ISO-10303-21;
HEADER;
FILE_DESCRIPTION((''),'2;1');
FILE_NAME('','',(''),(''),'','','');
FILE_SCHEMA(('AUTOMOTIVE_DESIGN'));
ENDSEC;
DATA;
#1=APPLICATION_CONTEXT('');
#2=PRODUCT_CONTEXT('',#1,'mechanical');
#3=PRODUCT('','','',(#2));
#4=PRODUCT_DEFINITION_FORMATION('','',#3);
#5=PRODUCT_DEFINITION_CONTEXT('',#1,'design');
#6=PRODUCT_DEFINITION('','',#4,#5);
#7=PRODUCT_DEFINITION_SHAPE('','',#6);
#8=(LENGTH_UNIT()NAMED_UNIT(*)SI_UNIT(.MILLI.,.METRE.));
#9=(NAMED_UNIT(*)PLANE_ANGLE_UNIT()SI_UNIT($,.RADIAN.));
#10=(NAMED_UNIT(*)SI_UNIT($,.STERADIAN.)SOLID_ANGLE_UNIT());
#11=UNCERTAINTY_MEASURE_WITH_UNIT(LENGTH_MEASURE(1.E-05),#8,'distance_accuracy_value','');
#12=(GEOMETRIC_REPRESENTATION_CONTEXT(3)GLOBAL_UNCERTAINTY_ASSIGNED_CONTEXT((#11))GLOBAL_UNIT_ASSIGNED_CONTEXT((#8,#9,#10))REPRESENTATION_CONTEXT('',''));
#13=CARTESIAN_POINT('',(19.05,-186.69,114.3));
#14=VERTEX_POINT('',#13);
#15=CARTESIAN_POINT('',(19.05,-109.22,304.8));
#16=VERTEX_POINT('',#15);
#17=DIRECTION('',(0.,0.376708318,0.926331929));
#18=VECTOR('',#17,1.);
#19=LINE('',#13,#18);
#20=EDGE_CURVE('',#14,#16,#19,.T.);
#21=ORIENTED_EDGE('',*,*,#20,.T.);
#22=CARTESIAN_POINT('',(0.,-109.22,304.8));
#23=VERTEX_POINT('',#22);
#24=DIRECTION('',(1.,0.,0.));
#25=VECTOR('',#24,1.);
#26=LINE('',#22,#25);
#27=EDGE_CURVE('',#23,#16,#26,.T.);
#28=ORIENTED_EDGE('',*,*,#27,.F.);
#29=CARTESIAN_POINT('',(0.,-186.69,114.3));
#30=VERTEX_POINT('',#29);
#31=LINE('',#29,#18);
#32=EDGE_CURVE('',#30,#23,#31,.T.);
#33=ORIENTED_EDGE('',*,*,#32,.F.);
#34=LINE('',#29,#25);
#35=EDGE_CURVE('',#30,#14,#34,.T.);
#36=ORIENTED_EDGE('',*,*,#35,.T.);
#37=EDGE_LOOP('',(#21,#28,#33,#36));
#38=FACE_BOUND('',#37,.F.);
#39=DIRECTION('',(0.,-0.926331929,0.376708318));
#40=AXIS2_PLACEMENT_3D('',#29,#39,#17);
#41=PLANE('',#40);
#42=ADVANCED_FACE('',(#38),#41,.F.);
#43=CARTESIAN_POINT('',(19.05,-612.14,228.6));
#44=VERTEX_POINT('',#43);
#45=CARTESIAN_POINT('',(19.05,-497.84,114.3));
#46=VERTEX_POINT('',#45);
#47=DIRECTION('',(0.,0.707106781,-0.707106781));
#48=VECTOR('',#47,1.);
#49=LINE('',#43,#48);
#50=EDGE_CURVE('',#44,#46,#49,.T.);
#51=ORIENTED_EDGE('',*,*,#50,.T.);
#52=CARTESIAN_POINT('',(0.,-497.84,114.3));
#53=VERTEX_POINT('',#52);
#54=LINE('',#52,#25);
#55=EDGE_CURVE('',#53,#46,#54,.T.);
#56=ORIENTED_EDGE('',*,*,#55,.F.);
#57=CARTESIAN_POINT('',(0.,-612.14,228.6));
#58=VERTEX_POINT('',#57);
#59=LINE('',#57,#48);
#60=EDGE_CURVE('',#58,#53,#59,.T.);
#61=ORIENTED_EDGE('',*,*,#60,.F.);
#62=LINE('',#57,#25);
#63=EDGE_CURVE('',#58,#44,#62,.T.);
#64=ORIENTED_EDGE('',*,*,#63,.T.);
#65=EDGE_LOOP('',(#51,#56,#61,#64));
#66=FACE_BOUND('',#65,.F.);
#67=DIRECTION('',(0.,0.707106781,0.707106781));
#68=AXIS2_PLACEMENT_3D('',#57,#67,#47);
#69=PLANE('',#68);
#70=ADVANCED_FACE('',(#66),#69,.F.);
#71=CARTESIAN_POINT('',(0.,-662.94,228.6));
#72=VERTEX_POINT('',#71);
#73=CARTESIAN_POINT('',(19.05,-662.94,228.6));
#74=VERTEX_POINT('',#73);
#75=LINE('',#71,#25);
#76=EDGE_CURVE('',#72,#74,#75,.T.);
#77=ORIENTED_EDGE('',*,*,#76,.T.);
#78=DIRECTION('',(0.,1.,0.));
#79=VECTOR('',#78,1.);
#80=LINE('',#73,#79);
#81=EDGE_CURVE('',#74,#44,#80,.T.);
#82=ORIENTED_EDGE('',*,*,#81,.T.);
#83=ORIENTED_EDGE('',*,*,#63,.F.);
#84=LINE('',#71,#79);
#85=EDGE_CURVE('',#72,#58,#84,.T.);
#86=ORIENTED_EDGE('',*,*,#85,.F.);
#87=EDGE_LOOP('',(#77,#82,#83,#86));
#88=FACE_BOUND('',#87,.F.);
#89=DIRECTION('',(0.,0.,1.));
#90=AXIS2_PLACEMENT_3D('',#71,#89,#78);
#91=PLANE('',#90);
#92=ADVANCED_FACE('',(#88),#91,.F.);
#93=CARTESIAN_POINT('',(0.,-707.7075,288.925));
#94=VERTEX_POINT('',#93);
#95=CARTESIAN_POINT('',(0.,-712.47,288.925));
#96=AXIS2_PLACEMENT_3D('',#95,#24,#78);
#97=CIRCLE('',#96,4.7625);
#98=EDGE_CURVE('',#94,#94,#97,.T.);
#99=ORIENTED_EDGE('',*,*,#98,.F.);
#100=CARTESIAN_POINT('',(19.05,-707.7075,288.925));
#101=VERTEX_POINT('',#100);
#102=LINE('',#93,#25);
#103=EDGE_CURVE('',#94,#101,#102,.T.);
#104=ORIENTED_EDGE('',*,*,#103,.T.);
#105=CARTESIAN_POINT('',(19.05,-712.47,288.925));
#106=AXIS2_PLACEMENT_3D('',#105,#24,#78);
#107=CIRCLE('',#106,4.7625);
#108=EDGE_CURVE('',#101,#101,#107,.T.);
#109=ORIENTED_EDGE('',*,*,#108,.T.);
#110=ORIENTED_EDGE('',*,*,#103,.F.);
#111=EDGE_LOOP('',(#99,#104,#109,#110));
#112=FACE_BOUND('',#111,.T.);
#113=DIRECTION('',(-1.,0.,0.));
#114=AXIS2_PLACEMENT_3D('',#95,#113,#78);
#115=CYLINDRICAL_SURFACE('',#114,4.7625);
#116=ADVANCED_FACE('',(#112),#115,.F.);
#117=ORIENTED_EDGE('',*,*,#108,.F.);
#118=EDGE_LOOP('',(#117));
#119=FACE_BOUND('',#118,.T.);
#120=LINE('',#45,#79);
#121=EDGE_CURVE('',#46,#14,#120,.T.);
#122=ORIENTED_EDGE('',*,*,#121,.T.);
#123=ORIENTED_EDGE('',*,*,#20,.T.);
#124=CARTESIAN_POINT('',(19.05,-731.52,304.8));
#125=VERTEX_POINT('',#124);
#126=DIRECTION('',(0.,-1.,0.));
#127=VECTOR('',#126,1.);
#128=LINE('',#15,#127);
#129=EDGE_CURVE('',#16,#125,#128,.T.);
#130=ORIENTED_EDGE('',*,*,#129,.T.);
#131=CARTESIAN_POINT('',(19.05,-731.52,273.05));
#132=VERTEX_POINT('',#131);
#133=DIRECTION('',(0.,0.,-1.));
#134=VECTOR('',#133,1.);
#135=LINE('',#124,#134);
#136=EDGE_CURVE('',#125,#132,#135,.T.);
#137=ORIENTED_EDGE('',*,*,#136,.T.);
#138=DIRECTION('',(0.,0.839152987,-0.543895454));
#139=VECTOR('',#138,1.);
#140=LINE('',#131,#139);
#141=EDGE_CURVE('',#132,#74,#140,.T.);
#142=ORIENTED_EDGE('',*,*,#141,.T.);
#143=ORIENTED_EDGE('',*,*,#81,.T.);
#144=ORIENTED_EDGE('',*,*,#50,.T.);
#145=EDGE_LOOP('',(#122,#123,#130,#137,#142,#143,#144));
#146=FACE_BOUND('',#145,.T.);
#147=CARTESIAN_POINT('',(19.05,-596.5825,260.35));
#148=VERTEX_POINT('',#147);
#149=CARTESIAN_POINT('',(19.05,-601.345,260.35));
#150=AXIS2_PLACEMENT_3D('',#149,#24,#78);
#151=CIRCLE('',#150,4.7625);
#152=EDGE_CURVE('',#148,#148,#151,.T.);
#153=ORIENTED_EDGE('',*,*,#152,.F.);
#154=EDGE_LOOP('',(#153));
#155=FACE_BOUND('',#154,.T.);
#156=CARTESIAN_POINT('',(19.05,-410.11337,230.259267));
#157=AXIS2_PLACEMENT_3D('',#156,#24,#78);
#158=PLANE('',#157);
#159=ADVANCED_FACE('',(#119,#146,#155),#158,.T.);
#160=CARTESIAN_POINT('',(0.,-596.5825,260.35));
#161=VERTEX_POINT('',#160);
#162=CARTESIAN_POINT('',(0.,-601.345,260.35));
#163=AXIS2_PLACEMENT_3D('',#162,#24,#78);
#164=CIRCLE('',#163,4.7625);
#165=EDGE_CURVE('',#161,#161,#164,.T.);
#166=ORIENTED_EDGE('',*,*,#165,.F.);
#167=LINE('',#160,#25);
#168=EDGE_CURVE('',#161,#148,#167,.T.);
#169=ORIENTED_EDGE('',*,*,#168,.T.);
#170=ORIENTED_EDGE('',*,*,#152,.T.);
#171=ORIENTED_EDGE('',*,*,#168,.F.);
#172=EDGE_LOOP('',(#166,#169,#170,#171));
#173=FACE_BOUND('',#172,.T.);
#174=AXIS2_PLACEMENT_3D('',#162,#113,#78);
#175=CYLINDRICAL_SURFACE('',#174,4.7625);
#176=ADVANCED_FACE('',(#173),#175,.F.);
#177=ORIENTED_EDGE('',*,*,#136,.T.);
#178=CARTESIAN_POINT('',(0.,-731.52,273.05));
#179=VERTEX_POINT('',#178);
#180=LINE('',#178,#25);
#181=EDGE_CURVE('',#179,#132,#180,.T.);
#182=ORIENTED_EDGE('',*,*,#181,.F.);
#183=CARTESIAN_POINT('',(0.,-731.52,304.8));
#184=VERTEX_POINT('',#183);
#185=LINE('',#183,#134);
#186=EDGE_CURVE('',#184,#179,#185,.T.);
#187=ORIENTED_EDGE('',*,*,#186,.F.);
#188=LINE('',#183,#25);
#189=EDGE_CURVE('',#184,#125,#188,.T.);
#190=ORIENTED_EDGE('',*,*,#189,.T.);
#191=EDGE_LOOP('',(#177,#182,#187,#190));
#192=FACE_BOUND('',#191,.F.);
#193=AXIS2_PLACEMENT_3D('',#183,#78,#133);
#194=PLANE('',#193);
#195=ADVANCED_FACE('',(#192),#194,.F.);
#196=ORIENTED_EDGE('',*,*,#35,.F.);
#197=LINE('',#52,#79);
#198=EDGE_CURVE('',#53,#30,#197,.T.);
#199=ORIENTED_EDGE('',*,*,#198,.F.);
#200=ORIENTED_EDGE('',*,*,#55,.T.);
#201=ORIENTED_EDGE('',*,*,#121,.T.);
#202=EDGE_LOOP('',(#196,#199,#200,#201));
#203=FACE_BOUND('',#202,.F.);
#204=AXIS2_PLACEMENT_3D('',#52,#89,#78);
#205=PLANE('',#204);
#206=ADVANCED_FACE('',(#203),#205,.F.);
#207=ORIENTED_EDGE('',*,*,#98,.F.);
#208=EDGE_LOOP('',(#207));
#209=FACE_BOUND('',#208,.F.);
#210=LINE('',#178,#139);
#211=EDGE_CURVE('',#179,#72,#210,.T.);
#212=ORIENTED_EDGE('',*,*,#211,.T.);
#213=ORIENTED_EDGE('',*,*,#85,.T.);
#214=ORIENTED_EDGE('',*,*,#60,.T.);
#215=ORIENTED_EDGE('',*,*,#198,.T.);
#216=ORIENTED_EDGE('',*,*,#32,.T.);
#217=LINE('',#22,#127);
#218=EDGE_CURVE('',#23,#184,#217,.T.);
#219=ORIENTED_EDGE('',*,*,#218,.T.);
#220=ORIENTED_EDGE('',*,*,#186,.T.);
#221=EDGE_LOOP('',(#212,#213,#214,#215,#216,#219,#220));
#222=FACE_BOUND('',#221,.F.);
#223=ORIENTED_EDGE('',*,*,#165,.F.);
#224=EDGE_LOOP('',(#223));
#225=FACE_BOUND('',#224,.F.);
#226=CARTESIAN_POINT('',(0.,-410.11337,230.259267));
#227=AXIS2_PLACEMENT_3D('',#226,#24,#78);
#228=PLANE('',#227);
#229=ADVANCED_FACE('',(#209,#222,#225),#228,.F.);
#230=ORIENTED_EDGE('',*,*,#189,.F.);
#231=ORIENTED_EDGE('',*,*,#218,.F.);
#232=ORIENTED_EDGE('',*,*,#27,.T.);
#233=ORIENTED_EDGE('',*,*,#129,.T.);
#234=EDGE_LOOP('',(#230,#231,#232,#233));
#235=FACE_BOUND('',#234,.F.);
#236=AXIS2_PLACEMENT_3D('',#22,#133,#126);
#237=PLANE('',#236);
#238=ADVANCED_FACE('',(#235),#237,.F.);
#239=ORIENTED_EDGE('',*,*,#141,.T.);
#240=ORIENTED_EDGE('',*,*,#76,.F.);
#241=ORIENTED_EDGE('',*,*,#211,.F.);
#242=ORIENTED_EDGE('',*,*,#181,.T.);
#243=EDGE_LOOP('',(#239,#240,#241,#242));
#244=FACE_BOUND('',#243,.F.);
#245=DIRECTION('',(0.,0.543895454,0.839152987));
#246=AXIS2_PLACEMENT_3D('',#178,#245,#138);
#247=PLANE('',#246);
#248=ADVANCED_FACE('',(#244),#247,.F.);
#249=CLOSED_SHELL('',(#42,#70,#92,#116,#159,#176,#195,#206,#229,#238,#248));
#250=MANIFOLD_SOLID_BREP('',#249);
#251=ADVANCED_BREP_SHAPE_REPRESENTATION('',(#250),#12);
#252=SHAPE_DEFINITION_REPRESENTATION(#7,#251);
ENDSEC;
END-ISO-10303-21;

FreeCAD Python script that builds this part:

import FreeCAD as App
import Part
import Sketcher

V = App.Vector
Q = App.Units.Quantity


def add_polygon(sketch, points):
    """Adds a closed chain of lines whose ends are joined by coincident constraints."""
    first, n = sketch.GeometryCount, len(points)
    for a, b in zip(points, points[1:] + points[:1]):
        sketch.addGeometry(Part.LineSegment(App.Vector(*a, 0), App.Vector(*b, 0)), False)
    for i in range(n):
        sketch.addConstraint(Sketcher.Constraint("Coincident", first + i, 2, first + (i + 1) % n, 1))

doc = App.newDocument("Part")
body = doc.addObject("PartDesign::Body", "Body")

sketch1 = doc.addObject("Sketcher::SketchObject", "Sketch")
body.addObject(sketch1)
sketch1.AttachmentSupport = (doc.YZ_Plane, [""])
sketch1.MapMode = "FlatFace"
add_polygon(sketch1, [(-612.1, 228.6), (-497.8, 114.3), (-186.7, 114.3), (-109.2, 304.8), (-731.5, 304.8), (-731.5, 273.1), (-662.9, 228.6)])
sketch1.addGeometry(Part.Circle(V(-601.3, 260.4, 0), V(0, 0, 1), 4.8), False)
sketch1.addGeometry(Part.Circle(V(-712.5, 288.9, 0), V(0, 0, 1), 4.8), False)
sketch1.addConstraint(Sketcher.Constraint("Horizontal", 1))
sketch1.addConstraint(Sketcher.Constraint("Horizontal", 3))
sketch1.addConstraint(Sketcher.Constraint("Vertical", 4))
sketch1.addConstraint(Sketcher.Constraint("Horizontal", 6))
sketch1.addConstraint(Sketcher.Constraint("Equal", 7, 8))
sketch1.addConstraint(Sketcher.Constraint("DistanceX", 6, 1, 6, 2, Q("2 in")))
sketch1.addConstraint(Sketcher.Constraint("Diameter", 7, Q("0.375 in")))
sketch1.addConstraint(Sketcher.Constraint("DistanceX", 3, 2, 3, 1, Q("24.5 in")))
sketch1.addConstraint(Sketcher.Constraint("DistanceY", -1, 1, 2, 2, Q("12 in")))
sketch1.addConstraint(Sketcher.Constraint("DistanceY", -1, 1, 5, 2, Q("9 in")))
sketch1.addConstraint(Sketcher.Constraint("Angle", 0, Q("-45 deg")))
sketch1.addConstraint(Sketcher.Constraint("DistanceX", 1, 1, 1, 2, Q("12.25 in")))
sketch1.addConstraint(Sketcher.Constraint("DistanceY", 4, 2, 4, 1, Q("1.25 in")))
sketch1.addConstraint(Sketcher.Constraint("DistanceX", 0, 2, -1, 1, Q("19.6 in")))
sketch1.addConstraint(Sketcher.Constraint("DistanceY", -1, 1, 0, 2, Q("4.5 in")))
sketch1.addConstraint(Sketcher.Constraint("DistanceX", 2, 2, -1, 1, Q("4.3 in")))
sketch1.addConstraint(Sketcher.Constraint("DistanceX", 8, 3, 1, 2, Q("20.7 in")))
sketch1.addConstraint(Sketcher.Constraint("DistanceY", 7, 3, 4, 2, Q("0.5 in")))
sketch1.addConstraint(Sketcher.Constraint("DistanceX", 7, 3, -1, 1, Q("23.675 in")))
sketch1.addConstraint(Sketcher.Constraint("DistanceY", -1, 1, 8, 3, Q("11.375 in")))
pad1 = doc.addObject("PartDesign::Pad", "Pad")
body.addObject(pad1)
pad1.Profile = sketch1
pad1.Length = Q("0.75 in")

doc.recompute()
